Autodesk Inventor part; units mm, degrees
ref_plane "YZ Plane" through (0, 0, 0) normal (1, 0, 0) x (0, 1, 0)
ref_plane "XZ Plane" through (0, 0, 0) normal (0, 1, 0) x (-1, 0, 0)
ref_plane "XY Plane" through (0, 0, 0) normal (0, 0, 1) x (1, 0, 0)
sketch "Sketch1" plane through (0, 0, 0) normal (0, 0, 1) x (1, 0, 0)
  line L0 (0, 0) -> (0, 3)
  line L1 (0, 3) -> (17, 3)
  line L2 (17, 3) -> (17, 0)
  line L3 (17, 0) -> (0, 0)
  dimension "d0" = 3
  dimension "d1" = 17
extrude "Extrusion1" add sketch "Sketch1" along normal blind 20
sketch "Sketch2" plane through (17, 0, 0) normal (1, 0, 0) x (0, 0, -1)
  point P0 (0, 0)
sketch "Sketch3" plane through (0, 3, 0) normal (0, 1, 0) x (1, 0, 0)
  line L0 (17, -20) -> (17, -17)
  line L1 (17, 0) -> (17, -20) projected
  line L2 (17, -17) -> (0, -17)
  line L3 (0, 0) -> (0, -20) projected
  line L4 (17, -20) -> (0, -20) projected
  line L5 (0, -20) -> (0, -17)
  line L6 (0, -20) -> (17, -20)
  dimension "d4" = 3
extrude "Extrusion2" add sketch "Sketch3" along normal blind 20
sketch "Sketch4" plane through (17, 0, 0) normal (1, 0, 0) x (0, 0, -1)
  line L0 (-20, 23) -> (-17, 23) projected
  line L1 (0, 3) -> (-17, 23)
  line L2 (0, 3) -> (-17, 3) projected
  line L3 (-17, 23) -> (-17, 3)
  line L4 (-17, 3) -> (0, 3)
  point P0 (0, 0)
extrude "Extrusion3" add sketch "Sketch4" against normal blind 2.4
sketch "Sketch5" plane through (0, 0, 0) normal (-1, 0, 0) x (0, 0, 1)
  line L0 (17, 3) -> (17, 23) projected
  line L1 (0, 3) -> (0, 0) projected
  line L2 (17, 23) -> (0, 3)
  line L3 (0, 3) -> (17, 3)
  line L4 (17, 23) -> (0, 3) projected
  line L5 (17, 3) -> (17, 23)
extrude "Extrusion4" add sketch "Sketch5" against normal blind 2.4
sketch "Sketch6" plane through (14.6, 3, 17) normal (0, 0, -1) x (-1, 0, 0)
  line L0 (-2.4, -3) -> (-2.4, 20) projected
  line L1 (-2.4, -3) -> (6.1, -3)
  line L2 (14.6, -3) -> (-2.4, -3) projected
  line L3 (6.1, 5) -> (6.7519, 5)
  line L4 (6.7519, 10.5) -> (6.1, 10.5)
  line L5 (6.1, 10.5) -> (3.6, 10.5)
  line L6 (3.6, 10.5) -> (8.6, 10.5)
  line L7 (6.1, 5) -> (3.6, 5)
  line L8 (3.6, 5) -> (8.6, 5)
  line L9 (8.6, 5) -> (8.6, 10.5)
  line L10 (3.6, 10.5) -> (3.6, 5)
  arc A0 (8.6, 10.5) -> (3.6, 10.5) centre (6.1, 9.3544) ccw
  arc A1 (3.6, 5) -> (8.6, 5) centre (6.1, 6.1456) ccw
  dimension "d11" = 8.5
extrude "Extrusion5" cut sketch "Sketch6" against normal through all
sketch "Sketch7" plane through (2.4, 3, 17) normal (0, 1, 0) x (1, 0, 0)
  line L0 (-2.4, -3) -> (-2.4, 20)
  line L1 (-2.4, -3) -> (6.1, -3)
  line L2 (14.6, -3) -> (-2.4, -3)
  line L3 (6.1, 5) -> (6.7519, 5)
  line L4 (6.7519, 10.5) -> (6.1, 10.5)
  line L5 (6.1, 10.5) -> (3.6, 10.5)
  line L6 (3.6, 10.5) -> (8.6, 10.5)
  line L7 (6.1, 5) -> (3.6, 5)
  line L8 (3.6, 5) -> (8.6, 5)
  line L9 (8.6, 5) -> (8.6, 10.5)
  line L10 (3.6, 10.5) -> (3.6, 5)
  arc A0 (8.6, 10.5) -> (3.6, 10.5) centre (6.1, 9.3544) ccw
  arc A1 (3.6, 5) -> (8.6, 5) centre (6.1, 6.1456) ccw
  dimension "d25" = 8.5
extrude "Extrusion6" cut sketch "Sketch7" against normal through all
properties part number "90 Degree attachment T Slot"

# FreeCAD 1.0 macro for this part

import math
import FreeCAD as App
import Part
import Sketcher
Q = App.Units.Quantity


def add_polygon(sketch, points):
    """Adds a closed chain of lines whose ends are joined by coincident constraints."""
    first, n = sketch.GeometryCount, len(points)
    for a, b in zip(points, points[1:] + points[:1]):
        sketch.addGeometry(Part.LineSegment(App.Vector(*a, 0), App.Vector(*b, 0)), False)
    for i in range(n):
        sketch.addConstraint(Sketcher.Constraint("Coincident", first + i, 2, first + (i + 1) % n, 1))

doc = App.newDocument("Part")
body = doc.addObject("PartDesign::Body", "Body")

# Sketch on XY plane
sketch1 = doc.addObject("Sketcher::SketchObject", "Sketch")
body.addObject(sketch1)
sketch1.AttachmentSupport = (doc.XY_Plane, [""])
sketch1.MapMode = "FlatFace"
add_polygon(sketch1, [(0, 3), (0, 0), (17, 0), (17, 3)])  # lines 0-3
sketch1.addConstraint([
    Sketcher.Constraint("Vertical", 0),
    Sketcher.Constraint("Horizontal", 1),
    Sketcher.Constraint("Vertical", 2),
    Sketcher.Constraint("Horizontal", 3),
    Sketcher.Constraint("Coincident", 0, 2, -1, 1),
    Sketcher.Constraint("DistanceX", 1, 1, 1, 2, Q("17 mm")),
    Sketcher.Constraint("DistanceY", 0, 2, 0, 1, Q("3 mm")),
])
pad1 = doc.addObject("PartDesign::Pad", "Pad")
body.addObject(pad1)
pad1.Profile = sketch1
pad1.Length = 20

# Sketch on XZ plane
sketch2 = doc.addObject("Sketcher::SketchObject", "Sketch001")
body.addObject(sketch2)
sketch2.AttachmentSupport = (doc.XZ_Plane, [""])
sketch2.MapMode = "FlatFace"
sketch2.AttachmentOffset = App.Placement(App.Vector(0, 0, -3), App.Rotation())
add_polygon(sketch2, [(0, 20), (17, 20), (17, 17), (0, 17)])  # lines 0-3
sketch2.addConstraint([
    Sketcher.Constraint("Horizontal", 0),
    Sketcher.Constraint("Vertical", 1),
    Sketcher.Constraint("Horizontal", 2),
    Sketcher.Constraint("Vertical", 3),
    Sketcher.Constraint("PointOnObject", 2, 2, -2),
    Sketcher.Constraint("DistanceY", 1, 2, 1, 1, Q("3 mm")),
    Sketcher.Constraint("DistanceX", 0, 1, 0, 2, Q("17 mm")),
    Sketcher.Constraint("DistanceY", -1, 1, 0, 2, Q("20 mm")),
])
pad2 = doc.addObject("PartDesign::Pad", "Pad001")
body.addObject(pad2)
pad2.Profile = sketch2
pad2.Length = 20
pad2.Reversed = True

# Sketch on YZ plane
sketch3 = doc.addObject("Sketcher::SketchObject", "Sketch002")
body.addObject(sketch3)
sketch3.AttachmentSupport = (doc.YZ_Plane, [""])
sketch3.MapMode = "FlatFace"
sketch3.AttachmentOffset = App.Placement(App.Vector(0, 0, 17), App.Rotation())
add_polygon(sketch3, [(3, 17), (3, 0), (23, 17)])  # lines 0-2
sketch3.addConstraint([
    Sketcher.Constraint("Vertical", 0),
    Sketcher.Constraint("Horizontal", 2),
    Sketcher.Constraint("PointOnObject", 0, 2, -1),
    Sketcher.Constraint("DistanceX", 2, 2, 2, 1, Q("20 mm")),
    Sketcher.Constraint("DistanceY", 0, 2, 0, 1, Q("17 mm")),
    Sketcher.Constraint("DistanceX", -1, 1, 0, 2, Q("3 mm")),
])
pad3 = doc.addObject("PartDesign::Pad", "Pad002")
body.addObject(pad3)
pad3.Profile = sketch3
pad3.Length = 2.4
pad3.Reversed = True

# Sketch on YZ plane
sketch4 = doc.addObject("Sketcher::SketchObject", "Sketch003")
body.addObject(sketch4)
sketch4.AttachmentSupport = (doc.YZ_Plane, [""])
sketch4.MapMode = "FlatFace"
add_polygon(sketch4, [(3, 0), (3, 17), (23, 17)])  # lines 0-2
sketch4.addConstraint([
    Sketcher.Constraint("Vertical", 0),
    Sketcher.Constraint("Horizontal", 1),
    Sketcher.Constraint("PointOnObject", 2, 2, -1),
    Sketcher.Constraint("DistanceX", 1, 1, 1, 2, Q("20 mm")),
    Sketcher.Constraint("DistanceY", 0, 1, 0, 2, Q("17 mm")),
    Sketcher.Constraint("DistanceX", -1, 1, 0, 2, Q("3 mm")),
])
pad4 = doc.addObject("PartDesign::Pad", "Pad003")
body.addObject(pad4)
pad4.Profile = sketch4
pad4.Length = 2.4

# Sketch on XY plane
sketch5 = doc.addObject("Sketcher::SketchObject", "Sketch004")
body.addObject(sketch5)
sketch5.AttachmentSupport = (doc.XY_Plane, [""])
sketch5.MapMode = "FlatFace"
sketch5.AttachmentOffset = App.Placement(App.Vector(0, 0, 17), App.Rotation())
sketch5.addGeometry([
    Part.LineSegment(App.Vector(11, 13.5, 0), App.Vector(11, 8, 0)),
    Part.ArcOfCircle(Part.Circle(App.Vector(8.5, 9.1, 0), App.Vector(0, 0, 1), 2.7), math.radians(-155), math.radians(-25)),
    Part.LineSegment(App.Vector(6, 8, 0), App.Vector(6, 13.5, 0)),
    Part.ArcOfCircle(Part.Circle(App.Vector(8.5, 12.4, 0), App.Vector(0, 0, 1), 2.7), math.radians(25), math.radians(155)),
], False)
sketch5.addConstraint([
    Sketcher.Constraint("Coincident", 0, 2, 1, 2),
    Sketcher.Constraint("Coincident", 1, 1, 2, 1),
    Sketcher.Constraint("Coincident", 2, 2, 3, 2),
    Sketcher.Constraint("Coincident", 3, 1, 0, 1),
    Sketcher.Constraint("Vertical", 0),
    Sketcher.Constraint("Vertical", 2),
    Sketcher.Constraint("Equal", 1, 3),
    Sketcher.Constraint("Horizontal", 0, 2, 1, 1),
    Sketcher.Constraint("Horizontal", 2, 2, 3, 1),
    Sketcher.Constraint("DistanceX", -1, 1, 1, 3, Q("8.5 mm")),
    Sketcher.Constraint("Radius", 1, Q("2.75 mm")),
    Sketcher.Constraint("DistanceY", 0, 2, 0, 1, Q("5.5 mm")),
    Sketcher.Constraint("DistanceX", -1, 1, 0, 2, Q("11 mm")),
    Sketcher.Constraint("DistanceY", -1, 1, 0, 2, Q("8 mm")),
])
pocket1 = doc.addObject("PartDesign::Pocket", "Pocket")
body.addObject(pocket1)
pocket1.Profile = sketch5
pocket1.Type = "ThroughAll"
pocket1.Reversed = True

# Sketch on XZ plane
sketch6 = doc.addObject("Sketcher::SketchObject", "Sketch005")
body.addObject(sketch6)
sketch6.AttachmentSupport = (doc.XZ_Plane, [""])
sketch6.MapMode = "FlatFace"
sketch6.AttachmentOffset = App.Placement(App.Vector(0, 0, -3), App.Rotation())
sketch6.addGeometry([
    Part.LineSegment(App.Vector(6, 6.5, 0), App.Vector(6, 12, 0)),
    Part.ArcOfCircle(Part.Circle(App.Vector(8.5, 10.9, 0), App.Vector(0, 0, 1), 2.7), math.radians(25), math.radians(155)),
    Part.LineSegment(App.Vector(11, 12, 0), App.Vector(11, 6.5, 0)),
    Part.ArcOfCircle(Part.Circle(App.Vector(8.5, 7.6, 0), App.Vector(0, 0, 1), 2.7), math.radians(-155), math.radians(-25)),
], False)
sketch6.addConstraint([
    Sketcher.Constraint("Coincident", 0, 2, 1, 2),
    Sketcher.Constraint("Coincident", 1, 1, 2, 1),
    Sketcher.Constraint("Coincident", 2, 2, 3, 2),
    Sketcher.Constraint("Coincident", 3, 1, 0, 1),
    Sketcher.Constraint("Vertical", 0),
    Sketcher.Constraint("Vertical", 2),
    Sketcher.Constraint("Equal", 1, 3),
    Sketcher.Constraint("Horizontal", 0, 2, 1, 1),
    Sketcher.Constraint("Horizontal", 2, 2, 3, 1),
    Sketcher.Constraint("DistanceX", -1, 1, 1, 3, Q("8.5 mm")),
    Sketcher.Constraint("Radius", 1, Q("2.75 mm")),
    Sketcher.Constraint("DistanceY", 0, 1, 0, 2, Q("5.5 mm")),
    Sketcher.Constraint("DistanceX", -1, 1, 0, 2, Q("6 mm")),
    Sketcher.Constraint("DistanceY", -1, 1, 0, 2, Q("12 mm")),
])
pocket2 = doc.addObject("PartDesign::Pocket", "Pocket001")
body.addObject(pocket2)
pocket2.Profile = sketch6
pocket2.Type = "ThroughAll"
pocket2.Reversed = True

doc.recompute()
